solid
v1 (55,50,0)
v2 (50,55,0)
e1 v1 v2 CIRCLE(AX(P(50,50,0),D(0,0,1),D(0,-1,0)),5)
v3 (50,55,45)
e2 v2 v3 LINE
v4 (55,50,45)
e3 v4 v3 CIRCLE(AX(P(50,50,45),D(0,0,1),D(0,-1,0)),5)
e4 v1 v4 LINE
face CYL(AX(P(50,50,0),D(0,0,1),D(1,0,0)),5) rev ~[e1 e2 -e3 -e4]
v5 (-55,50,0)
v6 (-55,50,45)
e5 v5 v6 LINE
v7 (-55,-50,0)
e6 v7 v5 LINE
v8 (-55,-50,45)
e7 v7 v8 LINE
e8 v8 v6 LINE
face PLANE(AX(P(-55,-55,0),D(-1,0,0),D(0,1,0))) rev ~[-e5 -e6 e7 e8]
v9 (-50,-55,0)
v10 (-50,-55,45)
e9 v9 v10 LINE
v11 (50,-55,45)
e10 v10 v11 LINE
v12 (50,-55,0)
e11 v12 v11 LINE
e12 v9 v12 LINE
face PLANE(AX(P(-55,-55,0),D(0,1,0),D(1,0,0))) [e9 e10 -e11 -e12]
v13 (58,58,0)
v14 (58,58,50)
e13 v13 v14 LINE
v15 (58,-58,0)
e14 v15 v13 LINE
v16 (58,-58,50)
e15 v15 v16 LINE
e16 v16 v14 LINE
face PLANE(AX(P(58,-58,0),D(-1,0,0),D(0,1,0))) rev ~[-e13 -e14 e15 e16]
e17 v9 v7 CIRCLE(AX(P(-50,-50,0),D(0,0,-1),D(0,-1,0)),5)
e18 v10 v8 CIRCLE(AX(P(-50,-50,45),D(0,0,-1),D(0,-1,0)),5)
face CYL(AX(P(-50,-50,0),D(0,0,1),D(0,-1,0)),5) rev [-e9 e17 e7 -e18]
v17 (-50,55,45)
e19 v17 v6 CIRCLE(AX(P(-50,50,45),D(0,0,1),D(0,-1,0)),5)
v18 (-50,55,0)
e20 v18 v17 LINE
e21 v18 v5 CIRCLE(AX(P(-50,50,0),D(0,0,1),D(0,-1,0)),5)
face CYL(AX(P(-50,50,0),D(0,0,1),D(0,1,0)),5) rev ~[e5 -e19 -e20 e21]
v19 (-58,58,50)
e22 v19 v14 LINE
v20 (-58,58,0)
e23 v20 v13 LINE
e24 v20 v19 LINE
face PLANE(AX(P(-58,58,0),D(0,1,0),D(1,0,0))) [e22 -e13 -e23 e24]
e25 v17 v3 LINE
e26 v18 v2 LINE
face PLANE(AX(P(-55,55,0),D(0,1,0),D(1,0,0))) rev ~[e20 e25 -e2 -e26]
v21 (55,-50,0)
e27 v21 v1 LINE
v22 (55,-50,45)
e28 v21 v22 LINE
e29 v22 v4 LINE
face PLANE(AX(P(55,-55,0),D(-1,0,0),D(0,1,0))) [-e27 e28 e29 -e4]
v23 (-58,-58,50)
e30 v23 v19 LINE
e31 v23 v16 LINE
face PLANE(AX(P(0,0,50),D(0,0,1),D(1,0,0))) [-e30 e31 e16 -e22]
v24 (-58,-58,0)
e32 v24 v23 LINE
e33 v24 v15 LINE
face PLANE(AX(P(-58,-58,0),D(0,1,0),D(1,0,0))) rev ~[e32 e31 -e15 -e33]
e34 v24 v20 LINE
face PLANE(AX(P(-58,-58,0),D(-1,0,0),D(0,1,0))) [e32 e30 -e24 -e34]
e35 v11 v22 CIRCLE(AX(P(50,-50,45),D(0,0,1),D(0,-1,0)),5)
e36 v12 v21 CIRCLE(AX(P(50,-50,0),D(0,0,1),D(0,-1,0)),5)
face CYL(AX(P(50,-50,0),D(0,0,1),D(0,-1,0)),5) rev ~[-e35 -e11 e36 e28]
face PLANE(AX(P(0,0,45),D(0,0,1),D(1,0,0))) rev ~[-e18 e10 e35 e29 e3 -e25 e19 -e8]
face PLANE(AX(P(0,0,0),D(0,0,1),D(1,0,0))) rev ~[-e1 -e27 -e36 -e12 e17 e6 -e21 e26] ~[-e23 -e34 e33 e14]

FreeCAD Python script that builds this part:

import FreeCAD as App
import Part
import Sketcher
Q = App.Units.Quantity


def edges_at(feature, points):
    """Names of the edges that pass closest to the given points."""
    edges = feature.Shape.Edges
    near = lambda p: min(range(len(edges)), key=lambda i: edges[i].distToShape(Part.Vertex(*p))[0])
    return sorted({f"Edge{near(p) + 1}" for p in points})

doc = App.newDocument("Part")
body = doc.addObject("PartDesign::Body", "Body")

# Sketch on XY plane
sketch1 = body.newObject("Sketcher::SketchObject", "Sketch")
sketch1.AttachmentSupport = (doc.getObject("XY_Plane"), [""])
sketch1.MapMode = "FlatFace"
sketch1.addGeometry([
    Part.LineSegment(App.Vector(-58, 58, 0), App.Vector(-58, -58, 0)),
    Part.LineSegment(App.Vector(-58, -58, 0), App.Vector(58, -58, 0)),
    Part.LineSegment(App.Vector(58, -58, 0), App.Vector(58, 58, 0)),
    Part.LineSegment(App.Vector(58, 58, 0), App.Vector(-58, 58, 0)),
], False)
sketch1.addConstraint([
    Sketcher.Constraint("Coincident", 0, 2, 1, 1),
    Sketcher.Constraint("Coincident", 1, 2, 2, 1),
    Sketcher.Constraint("Coincident", 2, 2, 3, 1),
    Sketcher.Constraint("Coincident", 3, 2, 0, 1),
    Sketcher.Constraint("Vertical", 0),
    Sketcher.Constraint("Horizontal", 1),
    Sketcher.Constraint("Vertical", 2),
    Sketcher.Constraint("Horizontal", 3),
    Sketcher.Constraint("Symmetric", 0, 2, 2, 2, -1, 1),
    Sketcher.Constraint("Equal", 3, 0),
    Sketcher.Constraint("DistanceX", 1, 1, 1, 2, Q("116 mm")),
])
pad1 = body.newObject("PartDesign::Pad", "Pad")
pad1.Profile = sketch1
pad1.Length = 50

# Sketch on XY plane
sketch2 = body.newObject("Sketcher::SketchObject", "Sketch001")
sketch2.AttachmentSupport = (doc.getObject("XY_Plane"), [""])
sketch2.MapMode = "FlatFace"
sketch2.addGeometry([
    Part.LineSegment(App.Vector(-55, 55, 0), App.Vector(-55, -55, 0)),
    Part.LineSegment(App.Vector(-55, -55, 0), App.Vector(55, -55, 0)),
    Part.LineSegment(App.Vector(55, -55, 0), App.Vector(55, 55, 0)),
    Part.LineSegment(App.Vector(55, 55, 0), App.Vector(-55, 55, 0)),
], False)
sketch2.addConstraint([
    Sketcher.Constraint("Coincident", 0, 2, 1, 1),
    Sketcher.Constraint("Coincident", 1, 2, 2, 1),
    Sketcher.Constraint("Coincident", 2, 2, 3, 1),
    Sketcher.Constraint("Coincident", 3, 2, 0, 1),
    Sketcher.Constraint("Vertical", 0),
    Sketcher.Constraint("Horizontal", 1),
    Sketcher.Constraint("Vertical", 2),
    Sketcher.Constraint("Horizontal", 3),
    Sketcher.Constraint("Symmetric", 0, 2, 2, 2, -1, 1),
    Sketcher.Constraint("Equal", 3, 0),
    Sketcher.Constraint("DistanceX", 1, 1, 1, 2, Q("110 mm")),
])
pocket1 = body.newObject("PartDesign::Pocket", "Pocket")
pocket1.Profile = sketch2
pocket1.Length = 45
pocket1.Reversed = True
doc.recompute()

fillet = body.newObject("PartDesign::Fillet", "Fillet")
fillet.Base = (pocket1, edges_at(pocket1, [
    (55, 55, 22.5),
    (-55, -55, 22.5),
    (55, -55, 22.5),
    (-55, 55, 22.5),
]))
fillet.Radius = 5

doc.recompute()
